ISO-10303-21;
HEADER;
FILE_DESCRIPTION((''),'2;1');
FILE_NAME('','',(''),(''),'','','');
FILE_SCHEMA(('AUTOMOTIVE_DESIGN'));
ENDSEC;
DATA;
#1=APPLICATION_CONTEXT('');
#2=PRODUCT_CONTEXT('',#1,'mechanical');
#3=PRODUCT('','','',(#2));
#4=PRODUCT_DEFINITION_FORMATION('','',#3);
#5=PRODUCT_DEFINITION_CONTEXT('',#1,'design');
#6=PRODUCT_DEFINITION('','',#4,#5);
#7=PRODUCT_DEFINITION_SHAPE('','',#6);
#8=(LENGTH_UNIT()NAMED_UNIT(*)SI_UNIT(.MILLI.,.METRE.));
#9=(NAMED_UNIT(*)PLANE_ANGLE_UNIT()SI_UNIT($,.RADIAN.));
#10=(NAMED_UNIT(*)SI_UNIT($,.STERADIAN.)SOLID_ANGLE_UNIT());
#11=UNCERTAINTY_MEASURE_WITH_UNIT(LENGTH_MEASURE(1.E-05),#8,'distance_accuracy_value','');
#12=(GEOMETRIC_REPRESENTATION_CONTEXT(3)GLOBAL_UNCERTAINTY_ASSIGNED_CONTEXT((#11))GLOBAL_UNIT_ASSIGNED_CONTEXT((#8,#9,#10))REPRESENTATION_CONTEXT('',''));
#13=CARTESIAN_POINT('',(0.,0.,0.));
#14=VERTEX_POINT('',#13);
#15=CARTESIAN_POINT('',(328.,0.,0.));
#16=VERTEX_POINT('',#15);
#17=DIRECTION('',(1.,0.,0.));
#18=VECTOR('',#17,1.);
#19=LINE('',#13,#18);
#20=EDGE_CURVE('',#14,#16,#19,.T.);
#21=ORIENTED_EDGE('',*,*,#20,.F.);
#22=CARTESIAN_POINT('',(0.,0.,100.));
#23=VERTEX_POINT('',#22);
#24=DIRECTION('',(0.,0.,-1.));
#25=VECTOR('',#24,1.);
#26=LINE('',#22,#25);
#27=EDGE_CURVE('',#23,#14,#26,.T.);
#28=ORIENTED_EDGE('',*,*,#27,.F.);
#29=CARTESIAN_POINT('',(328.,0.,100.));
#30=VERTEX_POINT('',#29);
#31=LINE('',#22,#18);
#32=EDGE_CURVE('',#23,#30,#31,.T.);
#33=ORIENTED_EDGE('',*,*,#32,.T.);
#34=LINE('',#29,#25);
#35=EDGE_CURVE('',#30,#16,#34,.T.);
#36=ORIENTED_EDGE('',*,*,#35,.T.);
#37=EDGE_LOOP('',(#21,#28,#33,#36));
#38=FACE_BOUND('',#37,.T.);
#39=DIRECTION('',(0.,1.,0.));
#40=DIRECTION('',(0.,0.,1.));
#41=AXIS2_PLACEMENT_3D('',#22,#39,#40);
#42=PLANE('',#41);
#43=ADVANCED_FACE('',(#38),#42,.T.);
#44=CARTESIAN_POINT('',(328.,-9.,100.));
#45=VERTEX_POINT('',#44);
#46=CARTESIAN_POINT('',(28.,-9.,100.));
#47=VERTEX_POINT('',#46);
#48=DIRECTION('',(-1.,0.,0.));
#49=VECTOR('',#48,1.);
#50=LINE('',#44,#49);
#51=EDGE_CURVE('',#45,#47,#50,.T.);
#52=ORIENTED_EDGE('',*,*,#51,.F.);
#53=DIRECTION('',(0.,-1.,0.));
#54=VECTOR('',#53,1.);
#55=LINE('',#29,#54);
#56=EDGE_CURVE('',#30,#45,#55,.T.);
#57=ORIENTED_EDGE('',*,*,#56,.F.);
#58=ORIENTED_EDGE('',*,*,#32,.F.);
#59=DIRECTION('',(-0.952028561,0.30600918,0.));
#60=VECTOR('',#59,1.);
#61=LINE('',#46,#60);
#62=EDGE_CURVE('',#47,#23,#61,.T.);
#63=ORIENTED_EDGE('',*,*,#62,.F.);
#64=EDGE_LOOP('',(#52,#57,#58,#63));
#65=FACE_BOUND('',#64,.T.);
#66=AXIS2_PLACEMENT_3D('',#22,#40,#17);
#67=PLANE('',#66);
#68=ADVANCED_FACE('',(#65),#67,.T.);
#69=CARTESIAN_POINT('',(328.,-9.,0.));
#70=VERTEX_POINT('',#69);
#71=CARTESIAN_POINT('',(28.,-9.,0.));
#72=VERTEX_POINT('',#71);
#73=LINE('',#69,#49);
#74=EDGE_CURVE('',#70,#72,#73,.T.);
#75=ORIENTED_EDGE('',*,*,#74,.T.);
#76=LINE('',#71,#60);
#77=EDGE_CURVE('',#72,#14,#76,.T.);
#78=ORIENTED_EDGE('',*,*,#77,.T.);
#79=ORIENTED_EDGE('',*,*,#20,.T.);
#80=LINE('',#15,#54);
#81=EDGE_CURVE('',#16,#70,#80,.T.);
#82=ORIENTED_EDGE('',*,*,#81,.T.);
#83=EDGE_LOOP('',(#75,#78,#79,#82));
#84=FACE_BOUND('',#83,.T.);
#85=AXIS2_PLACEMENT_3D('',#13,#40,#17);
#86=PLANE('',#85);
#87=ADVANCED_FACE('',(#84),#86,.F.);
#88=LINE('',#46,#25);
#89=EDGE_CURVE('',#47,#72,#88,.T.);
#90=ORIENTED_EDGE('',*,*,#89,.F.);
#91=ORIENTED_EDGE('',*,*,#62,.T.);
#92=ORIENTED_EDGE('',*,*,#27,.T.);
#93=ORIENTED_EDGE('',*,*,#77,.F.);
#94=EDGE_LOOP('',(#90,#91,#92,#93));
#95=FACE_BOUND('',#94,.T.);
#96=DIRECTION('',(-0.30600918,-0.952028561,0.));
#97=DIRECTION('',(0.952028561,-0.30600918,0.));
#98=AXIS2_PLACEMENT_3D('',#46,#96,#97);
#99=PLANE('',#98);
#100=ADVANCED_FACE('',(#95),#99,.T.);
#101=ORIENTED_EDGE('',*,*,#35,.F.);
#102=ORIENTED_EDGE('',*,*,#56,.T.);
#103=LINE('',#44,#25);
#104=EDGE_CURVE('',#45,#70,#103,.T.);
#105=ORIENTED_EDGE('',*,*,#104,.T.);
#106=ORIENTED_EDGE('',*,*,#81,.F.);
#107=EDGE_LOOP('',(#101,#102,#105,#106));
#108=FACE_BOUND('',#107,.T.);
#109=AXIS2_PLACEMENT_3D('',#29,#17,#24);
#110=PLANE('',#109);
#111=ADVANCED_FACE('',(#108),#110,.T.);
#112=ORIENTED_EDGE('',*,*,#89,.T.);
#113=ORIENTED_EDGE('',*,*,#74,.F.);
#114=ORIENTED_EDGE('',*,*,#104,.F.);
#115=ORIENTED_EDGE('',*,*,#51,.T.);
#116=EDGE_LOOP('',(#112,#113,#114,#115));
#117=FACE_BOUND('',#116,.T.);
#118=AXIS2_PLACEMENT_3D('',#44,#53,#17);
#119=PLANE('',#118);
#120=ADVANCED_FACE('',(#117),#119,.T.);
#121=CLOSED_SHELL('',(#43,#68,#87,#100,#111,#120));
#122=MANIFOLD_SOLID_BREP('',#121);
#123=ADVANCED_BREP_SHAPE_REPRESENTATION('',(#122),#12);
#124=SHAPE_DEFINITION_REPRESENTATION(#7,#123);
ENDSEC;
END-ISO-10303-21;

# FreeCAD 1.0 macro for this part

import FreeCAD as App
import Part
import Sketcher

doc = App.newDocument("Part")
params = doc.addObject("Spreadsheet::Sheet", "Params")
for row, (alias, value) in enumerate([
    ("sketch1_width", "328 mm"),
    ("sketch1_width2", "300 mm"),
    ("sketch1_height", "9 mm"),
    ("pad1_length", "100 mm"),
], start=1):
    params.set(f"A{row}", alias)
    params.set(f"B{row}", "=" + value)
    params.setAlias(f"B{row}", alias)

body = doc.addObject("PartDesign::Body", "Body")

# Sketch on XY plane
sketch1 = body.newObject("Sketcher::SketchObject", "Sketch")
sketch1.AttachmentSupport = (doc.getObject("XY_Plane"), [""])
sketch1.MapMode = "FlatFace"
sketch1.addGeometry([
    Part.LineSegment(App.Vector(328, 0, 0), App.Vector(0, 0, 0)),
    Part.LineSegment(App.Vector(0, 0, 0), App.Vector(28, -9, 0)),
    Part.LineSegment(App.Vector(28, -9, 0), App.Vector(328, -9, 0)),
    Part.LineSegment(App.Vector(328, -9, 0), App.Vector(328, 0, 0)),
], False)
sketch1.addConstraint([
    Sketcher.Constraint("Coincident", 0, 2, 1, 1),
    Sketcher.Constraint("Coincident", 1, 2, 2, 1),
    Sketcher.Constraint("Coincident", 2, 2, 3, 1),
    Sketcher.Constraint("Coincident", 3, 2, 0, 1),
    Sketcher.Constraint("Horizontal", 0),
    Sketcher.Constraint("Horizontal", 2),
    Sketcher.Constraint("Vertical", 3),
    Sketcher.Constraint("Coincident", 0, 2, -1, 1),
    Sketcher.Constraint("DistanceX", 0, 2, 0, 1, 328.0),
    Sketcher.Constraint("DistanceX", 2, 1, 2, 2, 300.0),
    Sketcher.Constraint("DistanceY", 3, 1, 3, 2, 9.0),
])
sketch1.setExpression("Constraints[8]", "Params.sketch1_width")
sketch1.setExpression("Constraints[9]", "Params.sketch1_width2")
sketch1.setExpression("Constraints[10]", "Params.sketch1_height")
pad1 = body.newObject("PartDesign::Pad", "Pad")
pad1.Profile = sketch1
pad1.setExpression("Length", "Params.pad1_length")

doc.recompute()
